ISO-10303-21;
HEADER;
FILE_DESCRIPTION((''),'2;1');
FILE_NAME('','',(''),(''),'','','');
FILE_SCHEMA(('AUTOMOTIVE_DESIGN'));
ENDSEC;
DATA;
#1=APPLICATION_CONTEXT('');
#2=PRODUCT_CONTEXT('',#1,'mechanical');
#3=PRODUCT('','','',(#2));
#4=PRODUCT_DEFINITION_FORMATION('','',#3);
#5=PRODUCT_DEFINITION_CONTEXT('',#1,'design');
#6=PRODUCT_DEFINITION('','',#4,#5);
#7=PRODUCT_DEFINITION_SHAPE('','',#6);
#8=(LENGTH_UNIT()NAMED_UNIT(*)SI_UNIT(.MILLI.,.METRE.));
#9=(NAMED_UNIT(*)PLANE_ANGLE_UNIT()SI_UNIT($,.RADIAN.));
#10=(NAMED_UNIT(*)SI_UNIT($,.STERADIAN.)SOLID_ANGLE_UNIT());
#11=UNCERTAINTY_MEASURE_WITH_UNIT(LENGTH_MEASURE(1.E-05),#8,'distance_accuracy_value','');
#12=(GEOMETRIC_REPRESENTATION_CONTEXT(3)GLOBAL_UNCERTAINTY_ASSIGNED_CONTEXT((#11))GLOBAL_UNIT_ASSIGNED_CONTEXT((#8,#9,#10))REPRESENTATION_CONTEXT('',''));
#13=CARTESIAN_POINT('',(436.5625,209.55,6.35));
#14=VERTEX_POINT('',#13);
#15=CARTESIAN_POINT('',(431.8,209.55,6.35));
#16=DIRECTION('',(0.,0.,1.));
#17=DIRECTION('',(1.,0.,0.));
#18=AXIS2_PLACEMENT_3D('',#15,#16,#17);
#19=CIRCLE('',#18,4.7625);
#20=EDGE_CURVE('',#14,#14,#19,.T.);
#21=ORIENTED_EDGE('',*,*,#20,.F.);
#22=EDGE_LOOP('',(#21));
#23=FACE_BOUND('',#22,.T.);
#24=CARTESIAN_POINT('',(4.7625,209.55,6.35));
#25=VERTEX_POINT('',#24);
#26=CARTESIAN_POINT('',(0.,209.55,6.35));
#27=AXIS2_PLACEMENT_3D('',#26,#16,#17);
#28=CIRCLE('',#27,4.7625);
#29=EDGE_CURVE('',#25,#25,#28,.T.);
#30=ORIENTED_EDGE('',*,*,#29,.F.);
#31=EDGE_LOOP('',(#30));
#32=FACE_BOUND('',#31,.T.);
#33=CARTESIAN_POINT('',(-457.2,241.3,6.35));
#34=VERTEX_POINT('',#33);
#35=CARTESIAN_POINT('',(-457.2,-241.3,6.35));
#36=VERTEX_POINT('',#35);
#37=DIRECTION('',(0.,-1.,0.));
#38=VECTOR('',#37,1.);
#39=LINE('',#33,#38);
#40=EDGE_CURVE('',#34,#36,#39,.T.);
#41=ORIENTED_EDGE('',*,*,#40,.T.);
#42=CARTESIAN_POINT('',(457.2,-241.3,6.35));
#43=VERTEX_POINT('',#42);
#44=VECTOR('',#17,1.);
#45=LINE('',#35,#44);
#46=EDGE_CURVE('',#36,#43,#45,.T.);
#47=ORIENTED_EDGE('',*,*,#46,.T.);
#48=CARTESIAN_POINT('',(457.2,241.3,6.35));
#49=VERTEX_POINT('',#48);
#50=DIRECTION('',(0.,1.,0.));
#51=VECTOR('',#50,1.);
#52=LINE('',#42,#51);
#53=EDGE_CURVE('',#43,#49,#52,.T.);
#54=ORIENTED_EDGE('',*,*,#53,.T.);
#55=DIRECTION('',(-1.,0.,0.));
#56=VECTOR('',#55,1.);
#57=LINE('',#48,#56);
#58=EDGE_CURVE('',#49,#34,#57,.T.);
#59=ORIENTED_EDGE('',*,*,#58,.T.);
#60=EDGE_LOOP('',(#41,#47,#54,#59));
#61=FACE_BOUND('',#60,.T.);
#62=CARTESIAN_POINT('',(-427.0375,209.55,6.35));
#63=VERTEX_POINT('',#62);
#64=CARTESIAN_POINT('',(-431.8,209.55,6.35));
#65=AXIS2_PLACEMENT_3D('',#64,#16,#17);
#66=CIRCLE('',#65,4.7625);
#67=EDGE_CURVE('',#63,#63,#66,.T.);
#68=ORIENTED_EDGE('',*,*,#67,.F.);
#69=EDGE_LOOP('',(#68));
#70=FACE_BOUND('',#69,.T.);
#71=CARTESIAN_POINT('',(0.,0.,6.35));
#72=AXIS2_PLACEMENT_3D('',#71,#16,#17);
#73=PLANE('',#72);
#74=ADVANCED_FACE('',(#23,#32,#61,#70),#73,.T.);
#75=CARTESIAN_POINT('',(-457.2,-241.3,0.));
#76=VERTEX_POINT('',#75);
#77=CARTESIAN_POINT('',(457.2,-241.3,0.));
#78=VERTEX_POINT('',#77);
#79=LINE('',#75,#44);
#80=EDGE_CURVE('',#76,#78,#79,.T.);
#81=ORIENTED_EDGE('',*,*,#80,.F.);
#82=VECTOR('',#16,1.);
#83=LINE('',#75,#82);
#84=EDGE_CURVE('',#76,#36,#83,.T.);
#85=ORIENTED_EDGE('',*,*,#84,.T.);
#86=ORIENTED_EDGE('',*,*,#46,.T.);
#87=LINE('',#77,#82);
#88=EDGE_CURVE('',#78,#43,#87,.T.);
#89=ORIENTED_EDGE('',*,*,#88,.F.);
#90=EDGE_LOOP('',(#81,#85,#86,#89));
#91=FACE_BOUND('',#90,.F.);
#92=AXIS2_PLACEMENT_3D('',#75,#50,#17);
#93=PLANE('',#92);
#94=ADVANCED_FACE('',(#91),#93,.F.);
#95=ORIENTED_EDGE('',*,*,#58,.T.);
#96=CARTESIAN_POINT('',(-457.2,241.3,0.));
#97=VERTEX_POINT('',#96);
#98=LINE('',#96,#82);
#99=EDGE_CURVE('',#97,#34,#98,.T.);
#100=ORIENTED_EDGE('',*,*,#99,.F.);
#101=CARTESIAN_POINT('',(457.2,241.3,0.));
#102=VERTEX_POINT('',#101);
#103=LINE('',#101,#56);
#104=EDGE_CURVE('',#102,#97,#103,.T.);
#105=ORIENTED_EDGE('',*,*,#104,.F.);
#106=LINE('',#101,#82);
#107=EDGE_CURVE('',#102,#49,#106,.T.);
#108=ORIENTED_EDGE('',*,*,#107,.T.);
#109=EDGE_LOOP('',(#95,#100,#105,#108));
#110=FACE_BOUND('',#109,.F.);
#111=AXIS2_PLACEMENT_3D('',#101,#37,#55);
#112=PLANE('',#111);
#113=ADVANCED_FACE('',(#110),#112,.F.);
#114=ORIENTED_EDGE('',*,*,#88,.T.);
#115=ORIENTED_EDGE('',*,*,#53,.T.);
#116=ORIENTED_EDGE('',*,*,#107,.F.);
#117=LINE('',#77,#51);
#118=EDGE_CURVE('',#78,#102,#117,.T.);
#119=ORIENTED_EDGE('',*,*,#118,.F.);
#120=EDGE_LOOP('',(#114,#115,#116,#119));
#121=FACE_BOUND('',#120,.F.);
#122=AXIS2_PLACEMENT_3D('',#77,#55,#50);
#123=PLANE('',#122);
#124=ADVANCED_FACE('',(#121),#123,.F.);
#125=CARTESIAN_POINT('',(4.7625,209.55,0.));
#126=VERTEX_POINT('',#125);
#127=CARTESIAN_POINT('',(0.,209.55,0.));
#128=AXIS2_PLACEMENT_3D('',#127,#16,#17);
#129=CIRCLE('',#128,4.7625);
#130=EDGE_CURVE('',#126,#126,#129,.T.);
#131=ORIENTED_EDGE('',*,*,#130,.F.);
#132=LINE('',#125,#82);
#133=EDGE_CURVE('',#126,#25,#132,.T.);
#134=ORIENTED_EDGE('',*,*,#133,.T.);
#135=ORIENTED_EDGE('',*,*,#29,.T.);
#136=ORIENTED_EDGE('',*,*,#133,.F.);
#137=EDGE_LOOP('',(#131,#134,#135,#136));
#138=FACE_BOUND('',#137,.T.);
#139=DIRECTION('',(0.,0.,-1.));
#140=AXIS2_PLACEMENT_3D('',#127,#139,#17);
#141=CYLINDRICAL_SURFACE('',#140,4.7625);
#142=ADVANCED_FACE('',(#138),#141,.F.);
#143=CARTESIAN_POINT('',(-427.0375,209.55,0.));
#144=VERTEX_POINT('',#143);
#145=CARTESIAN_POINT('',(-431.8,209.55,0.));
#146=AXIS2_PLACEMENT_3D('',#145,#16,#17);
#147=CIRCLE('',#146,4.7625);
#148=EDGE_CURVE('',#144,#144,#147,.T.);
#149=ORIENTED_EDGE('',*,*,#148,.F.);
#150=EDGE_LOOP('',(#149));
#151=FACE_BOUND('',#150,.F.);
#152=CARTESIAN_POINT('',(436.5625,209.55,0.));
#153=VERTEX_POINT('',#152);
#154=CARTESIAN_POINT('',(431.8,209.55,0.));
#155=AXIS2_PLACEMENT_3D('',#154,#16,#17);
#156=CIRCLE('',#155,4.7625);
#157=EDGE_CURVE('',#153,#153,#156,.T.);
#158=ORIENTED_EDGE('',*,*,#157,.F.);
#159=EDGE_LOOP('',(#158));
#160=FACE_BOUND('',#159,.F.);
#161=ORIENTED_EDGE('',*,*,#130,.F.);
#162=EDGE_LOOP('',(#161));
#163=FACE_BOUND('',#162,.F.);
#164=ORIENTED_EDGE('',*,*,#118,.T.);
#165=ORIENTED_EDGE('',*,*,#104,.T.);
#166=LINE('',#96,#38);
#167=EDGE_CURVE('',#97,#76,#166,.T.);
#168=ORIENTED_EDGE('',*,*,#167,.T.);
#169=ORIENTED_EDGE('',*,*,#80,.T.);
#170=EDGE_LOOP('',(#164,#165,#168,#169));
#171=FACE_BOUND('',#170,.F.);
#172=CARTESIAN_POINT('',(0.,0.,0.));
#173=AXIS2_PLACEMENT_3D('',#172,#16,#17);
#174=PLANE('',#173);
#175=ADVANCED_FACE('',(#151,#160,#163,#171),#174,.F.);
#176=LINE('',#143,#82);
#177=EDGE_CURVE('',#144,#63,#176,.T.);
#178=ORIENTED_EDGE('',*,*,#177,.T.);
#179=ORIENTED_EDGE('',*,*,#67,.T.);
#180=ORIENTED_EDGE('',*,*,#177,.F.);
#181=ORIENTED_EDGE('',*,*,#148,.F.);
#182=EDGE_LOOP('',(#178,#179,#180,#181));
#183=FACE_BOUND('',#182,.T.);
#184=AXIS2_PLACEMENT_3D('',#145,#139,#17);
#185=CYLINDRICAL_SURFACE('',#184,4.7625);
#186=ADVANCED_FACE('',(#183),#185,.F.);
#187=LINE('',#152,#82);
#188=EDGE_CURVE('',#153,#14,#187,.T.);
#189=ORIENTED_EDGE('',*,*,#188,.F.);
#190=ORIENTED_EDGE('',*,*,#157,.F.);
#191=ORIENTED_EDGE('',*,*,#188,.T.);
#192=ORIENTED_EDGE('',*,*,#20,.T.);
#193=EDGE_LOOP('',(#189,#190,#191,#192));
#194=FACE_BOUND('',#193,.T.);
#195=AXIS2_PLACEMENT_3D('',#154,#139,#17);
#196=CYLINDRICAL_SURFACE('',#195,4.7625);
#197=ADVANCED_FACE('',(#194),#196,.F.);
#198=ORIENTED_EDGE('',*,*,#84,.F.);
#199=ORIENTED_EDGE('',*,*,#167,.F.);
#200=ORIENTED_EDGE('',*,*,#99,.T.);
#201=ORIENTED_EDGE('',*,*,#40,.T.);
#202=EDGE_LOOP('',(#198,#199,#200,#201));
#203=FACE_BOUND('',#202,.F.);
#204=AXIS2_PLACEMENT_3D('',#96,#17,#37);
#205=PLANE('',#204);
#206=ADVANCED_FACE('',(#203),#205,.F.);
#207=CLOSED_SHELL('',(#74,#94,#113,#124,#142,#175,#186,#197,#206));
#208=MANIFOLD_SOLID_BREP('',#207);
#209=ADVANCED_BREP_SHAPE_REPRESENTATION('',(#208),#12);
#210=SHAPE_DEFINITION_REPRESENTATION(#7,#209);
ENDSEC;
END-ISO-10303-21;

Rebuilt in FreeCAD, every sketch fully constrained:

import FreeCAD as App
import Part
import Sketcher
Q = App.Units.Quantity


def add_polygon(sketch, points):
    """Adds a closed chain of lines whose ends are joined by coincident constraints."""
    first, n = sketch.GeometryCount, len(points)
    for a, b in zip(points, points[1:] + points[:1]):
        sketch.addGeometry(Part.LineSegment(App.Vector(*a, 0), App.Vector(*b, 0)), False)
    for i in range(n):
        sketch.addConstraint(Sketcher.Constraint("Coincident", first + i, 2, first + (i + 1) % n, 1))

doc = App.newDocument("Part")
body = doc.addObject("PartDesign::Body", "Body")

# Sketch on XY plane
sketch1 = doc.addObject("Sketcher::SketchObject", "Sketch")
body.addObject(sketch1)
sketch1.AttachmentSupport = (doc.XY_Plane, [""])
sketch1.MapMode = "FlatFace"
add_polygon(sketch1, [(-457.2, 241.3), (-457.2, -241.3), (457.2, -241.3), (457.2, 241.3)])  # lines 0-3
sketch1.addGeometry(Part.Circle(App.Vector(-431.8, 209.6, 0), App.Vector(0, 0, 1), 4.8), False)  # 4
sketch1.addGeometry(Part.Circle(App.Vector(0, 209.6, 0), App.Vector(0, 0, 1), 4.8), False)  # 5
sketch1.addGeometry(Part.Circle(App.Vector(431.8, 209.6, 0), App.Vector(0, 0, 1), 4.8), False)  # 6
sketch1.addConstraint([
    Sketcher.Constraint("Vertical", 0),
    Sketcher.Constraint("Horizontal", 1),
    Sketcher.Constraint("Vertical", 2),
    Sketcher.Constraint("Horizontal", 3),
    Sketcher.Constraint("Equal", 4, 5),
    Sketcher.Constraint("Equal", 5, 6),
    Sketcher.Constraint("Symmetric", 0, 2, 2, 2, -1, 1),
    Sketcher.Constraint("Symmetric", 4, 3, 6, 3, -2),
    Sketcher.Constraint("PointOnObject", 5, 3, -2),
    Sketcher.Constraint("Horizontal", 4, 3, 5, 3),
    Sketcher.Constraint("DistanceX", 1, 1, 1, 2, Q("36 in")),
    Sketcher.Constraint("DistanceY", 0, 2, 0, 1, Q("19 in")),
    Sketcher.Constraint("Diameter", 4, Q("0.375 in")),
    Sketcher.Constraint("DistanceX", 4, 3, -1, 1, Q("17 in")),
    Sketcher.Constraint("DistanceY", 6, 3, 2, 2, Q("1.25 in")),
])
pad1 = doc.addObject("PartDesign::Pad", "Pad")
body.addObject(pad1)
pad1.Profile = sketch1
pad1.Length = Q("0.25 in")

doc.recompute()
